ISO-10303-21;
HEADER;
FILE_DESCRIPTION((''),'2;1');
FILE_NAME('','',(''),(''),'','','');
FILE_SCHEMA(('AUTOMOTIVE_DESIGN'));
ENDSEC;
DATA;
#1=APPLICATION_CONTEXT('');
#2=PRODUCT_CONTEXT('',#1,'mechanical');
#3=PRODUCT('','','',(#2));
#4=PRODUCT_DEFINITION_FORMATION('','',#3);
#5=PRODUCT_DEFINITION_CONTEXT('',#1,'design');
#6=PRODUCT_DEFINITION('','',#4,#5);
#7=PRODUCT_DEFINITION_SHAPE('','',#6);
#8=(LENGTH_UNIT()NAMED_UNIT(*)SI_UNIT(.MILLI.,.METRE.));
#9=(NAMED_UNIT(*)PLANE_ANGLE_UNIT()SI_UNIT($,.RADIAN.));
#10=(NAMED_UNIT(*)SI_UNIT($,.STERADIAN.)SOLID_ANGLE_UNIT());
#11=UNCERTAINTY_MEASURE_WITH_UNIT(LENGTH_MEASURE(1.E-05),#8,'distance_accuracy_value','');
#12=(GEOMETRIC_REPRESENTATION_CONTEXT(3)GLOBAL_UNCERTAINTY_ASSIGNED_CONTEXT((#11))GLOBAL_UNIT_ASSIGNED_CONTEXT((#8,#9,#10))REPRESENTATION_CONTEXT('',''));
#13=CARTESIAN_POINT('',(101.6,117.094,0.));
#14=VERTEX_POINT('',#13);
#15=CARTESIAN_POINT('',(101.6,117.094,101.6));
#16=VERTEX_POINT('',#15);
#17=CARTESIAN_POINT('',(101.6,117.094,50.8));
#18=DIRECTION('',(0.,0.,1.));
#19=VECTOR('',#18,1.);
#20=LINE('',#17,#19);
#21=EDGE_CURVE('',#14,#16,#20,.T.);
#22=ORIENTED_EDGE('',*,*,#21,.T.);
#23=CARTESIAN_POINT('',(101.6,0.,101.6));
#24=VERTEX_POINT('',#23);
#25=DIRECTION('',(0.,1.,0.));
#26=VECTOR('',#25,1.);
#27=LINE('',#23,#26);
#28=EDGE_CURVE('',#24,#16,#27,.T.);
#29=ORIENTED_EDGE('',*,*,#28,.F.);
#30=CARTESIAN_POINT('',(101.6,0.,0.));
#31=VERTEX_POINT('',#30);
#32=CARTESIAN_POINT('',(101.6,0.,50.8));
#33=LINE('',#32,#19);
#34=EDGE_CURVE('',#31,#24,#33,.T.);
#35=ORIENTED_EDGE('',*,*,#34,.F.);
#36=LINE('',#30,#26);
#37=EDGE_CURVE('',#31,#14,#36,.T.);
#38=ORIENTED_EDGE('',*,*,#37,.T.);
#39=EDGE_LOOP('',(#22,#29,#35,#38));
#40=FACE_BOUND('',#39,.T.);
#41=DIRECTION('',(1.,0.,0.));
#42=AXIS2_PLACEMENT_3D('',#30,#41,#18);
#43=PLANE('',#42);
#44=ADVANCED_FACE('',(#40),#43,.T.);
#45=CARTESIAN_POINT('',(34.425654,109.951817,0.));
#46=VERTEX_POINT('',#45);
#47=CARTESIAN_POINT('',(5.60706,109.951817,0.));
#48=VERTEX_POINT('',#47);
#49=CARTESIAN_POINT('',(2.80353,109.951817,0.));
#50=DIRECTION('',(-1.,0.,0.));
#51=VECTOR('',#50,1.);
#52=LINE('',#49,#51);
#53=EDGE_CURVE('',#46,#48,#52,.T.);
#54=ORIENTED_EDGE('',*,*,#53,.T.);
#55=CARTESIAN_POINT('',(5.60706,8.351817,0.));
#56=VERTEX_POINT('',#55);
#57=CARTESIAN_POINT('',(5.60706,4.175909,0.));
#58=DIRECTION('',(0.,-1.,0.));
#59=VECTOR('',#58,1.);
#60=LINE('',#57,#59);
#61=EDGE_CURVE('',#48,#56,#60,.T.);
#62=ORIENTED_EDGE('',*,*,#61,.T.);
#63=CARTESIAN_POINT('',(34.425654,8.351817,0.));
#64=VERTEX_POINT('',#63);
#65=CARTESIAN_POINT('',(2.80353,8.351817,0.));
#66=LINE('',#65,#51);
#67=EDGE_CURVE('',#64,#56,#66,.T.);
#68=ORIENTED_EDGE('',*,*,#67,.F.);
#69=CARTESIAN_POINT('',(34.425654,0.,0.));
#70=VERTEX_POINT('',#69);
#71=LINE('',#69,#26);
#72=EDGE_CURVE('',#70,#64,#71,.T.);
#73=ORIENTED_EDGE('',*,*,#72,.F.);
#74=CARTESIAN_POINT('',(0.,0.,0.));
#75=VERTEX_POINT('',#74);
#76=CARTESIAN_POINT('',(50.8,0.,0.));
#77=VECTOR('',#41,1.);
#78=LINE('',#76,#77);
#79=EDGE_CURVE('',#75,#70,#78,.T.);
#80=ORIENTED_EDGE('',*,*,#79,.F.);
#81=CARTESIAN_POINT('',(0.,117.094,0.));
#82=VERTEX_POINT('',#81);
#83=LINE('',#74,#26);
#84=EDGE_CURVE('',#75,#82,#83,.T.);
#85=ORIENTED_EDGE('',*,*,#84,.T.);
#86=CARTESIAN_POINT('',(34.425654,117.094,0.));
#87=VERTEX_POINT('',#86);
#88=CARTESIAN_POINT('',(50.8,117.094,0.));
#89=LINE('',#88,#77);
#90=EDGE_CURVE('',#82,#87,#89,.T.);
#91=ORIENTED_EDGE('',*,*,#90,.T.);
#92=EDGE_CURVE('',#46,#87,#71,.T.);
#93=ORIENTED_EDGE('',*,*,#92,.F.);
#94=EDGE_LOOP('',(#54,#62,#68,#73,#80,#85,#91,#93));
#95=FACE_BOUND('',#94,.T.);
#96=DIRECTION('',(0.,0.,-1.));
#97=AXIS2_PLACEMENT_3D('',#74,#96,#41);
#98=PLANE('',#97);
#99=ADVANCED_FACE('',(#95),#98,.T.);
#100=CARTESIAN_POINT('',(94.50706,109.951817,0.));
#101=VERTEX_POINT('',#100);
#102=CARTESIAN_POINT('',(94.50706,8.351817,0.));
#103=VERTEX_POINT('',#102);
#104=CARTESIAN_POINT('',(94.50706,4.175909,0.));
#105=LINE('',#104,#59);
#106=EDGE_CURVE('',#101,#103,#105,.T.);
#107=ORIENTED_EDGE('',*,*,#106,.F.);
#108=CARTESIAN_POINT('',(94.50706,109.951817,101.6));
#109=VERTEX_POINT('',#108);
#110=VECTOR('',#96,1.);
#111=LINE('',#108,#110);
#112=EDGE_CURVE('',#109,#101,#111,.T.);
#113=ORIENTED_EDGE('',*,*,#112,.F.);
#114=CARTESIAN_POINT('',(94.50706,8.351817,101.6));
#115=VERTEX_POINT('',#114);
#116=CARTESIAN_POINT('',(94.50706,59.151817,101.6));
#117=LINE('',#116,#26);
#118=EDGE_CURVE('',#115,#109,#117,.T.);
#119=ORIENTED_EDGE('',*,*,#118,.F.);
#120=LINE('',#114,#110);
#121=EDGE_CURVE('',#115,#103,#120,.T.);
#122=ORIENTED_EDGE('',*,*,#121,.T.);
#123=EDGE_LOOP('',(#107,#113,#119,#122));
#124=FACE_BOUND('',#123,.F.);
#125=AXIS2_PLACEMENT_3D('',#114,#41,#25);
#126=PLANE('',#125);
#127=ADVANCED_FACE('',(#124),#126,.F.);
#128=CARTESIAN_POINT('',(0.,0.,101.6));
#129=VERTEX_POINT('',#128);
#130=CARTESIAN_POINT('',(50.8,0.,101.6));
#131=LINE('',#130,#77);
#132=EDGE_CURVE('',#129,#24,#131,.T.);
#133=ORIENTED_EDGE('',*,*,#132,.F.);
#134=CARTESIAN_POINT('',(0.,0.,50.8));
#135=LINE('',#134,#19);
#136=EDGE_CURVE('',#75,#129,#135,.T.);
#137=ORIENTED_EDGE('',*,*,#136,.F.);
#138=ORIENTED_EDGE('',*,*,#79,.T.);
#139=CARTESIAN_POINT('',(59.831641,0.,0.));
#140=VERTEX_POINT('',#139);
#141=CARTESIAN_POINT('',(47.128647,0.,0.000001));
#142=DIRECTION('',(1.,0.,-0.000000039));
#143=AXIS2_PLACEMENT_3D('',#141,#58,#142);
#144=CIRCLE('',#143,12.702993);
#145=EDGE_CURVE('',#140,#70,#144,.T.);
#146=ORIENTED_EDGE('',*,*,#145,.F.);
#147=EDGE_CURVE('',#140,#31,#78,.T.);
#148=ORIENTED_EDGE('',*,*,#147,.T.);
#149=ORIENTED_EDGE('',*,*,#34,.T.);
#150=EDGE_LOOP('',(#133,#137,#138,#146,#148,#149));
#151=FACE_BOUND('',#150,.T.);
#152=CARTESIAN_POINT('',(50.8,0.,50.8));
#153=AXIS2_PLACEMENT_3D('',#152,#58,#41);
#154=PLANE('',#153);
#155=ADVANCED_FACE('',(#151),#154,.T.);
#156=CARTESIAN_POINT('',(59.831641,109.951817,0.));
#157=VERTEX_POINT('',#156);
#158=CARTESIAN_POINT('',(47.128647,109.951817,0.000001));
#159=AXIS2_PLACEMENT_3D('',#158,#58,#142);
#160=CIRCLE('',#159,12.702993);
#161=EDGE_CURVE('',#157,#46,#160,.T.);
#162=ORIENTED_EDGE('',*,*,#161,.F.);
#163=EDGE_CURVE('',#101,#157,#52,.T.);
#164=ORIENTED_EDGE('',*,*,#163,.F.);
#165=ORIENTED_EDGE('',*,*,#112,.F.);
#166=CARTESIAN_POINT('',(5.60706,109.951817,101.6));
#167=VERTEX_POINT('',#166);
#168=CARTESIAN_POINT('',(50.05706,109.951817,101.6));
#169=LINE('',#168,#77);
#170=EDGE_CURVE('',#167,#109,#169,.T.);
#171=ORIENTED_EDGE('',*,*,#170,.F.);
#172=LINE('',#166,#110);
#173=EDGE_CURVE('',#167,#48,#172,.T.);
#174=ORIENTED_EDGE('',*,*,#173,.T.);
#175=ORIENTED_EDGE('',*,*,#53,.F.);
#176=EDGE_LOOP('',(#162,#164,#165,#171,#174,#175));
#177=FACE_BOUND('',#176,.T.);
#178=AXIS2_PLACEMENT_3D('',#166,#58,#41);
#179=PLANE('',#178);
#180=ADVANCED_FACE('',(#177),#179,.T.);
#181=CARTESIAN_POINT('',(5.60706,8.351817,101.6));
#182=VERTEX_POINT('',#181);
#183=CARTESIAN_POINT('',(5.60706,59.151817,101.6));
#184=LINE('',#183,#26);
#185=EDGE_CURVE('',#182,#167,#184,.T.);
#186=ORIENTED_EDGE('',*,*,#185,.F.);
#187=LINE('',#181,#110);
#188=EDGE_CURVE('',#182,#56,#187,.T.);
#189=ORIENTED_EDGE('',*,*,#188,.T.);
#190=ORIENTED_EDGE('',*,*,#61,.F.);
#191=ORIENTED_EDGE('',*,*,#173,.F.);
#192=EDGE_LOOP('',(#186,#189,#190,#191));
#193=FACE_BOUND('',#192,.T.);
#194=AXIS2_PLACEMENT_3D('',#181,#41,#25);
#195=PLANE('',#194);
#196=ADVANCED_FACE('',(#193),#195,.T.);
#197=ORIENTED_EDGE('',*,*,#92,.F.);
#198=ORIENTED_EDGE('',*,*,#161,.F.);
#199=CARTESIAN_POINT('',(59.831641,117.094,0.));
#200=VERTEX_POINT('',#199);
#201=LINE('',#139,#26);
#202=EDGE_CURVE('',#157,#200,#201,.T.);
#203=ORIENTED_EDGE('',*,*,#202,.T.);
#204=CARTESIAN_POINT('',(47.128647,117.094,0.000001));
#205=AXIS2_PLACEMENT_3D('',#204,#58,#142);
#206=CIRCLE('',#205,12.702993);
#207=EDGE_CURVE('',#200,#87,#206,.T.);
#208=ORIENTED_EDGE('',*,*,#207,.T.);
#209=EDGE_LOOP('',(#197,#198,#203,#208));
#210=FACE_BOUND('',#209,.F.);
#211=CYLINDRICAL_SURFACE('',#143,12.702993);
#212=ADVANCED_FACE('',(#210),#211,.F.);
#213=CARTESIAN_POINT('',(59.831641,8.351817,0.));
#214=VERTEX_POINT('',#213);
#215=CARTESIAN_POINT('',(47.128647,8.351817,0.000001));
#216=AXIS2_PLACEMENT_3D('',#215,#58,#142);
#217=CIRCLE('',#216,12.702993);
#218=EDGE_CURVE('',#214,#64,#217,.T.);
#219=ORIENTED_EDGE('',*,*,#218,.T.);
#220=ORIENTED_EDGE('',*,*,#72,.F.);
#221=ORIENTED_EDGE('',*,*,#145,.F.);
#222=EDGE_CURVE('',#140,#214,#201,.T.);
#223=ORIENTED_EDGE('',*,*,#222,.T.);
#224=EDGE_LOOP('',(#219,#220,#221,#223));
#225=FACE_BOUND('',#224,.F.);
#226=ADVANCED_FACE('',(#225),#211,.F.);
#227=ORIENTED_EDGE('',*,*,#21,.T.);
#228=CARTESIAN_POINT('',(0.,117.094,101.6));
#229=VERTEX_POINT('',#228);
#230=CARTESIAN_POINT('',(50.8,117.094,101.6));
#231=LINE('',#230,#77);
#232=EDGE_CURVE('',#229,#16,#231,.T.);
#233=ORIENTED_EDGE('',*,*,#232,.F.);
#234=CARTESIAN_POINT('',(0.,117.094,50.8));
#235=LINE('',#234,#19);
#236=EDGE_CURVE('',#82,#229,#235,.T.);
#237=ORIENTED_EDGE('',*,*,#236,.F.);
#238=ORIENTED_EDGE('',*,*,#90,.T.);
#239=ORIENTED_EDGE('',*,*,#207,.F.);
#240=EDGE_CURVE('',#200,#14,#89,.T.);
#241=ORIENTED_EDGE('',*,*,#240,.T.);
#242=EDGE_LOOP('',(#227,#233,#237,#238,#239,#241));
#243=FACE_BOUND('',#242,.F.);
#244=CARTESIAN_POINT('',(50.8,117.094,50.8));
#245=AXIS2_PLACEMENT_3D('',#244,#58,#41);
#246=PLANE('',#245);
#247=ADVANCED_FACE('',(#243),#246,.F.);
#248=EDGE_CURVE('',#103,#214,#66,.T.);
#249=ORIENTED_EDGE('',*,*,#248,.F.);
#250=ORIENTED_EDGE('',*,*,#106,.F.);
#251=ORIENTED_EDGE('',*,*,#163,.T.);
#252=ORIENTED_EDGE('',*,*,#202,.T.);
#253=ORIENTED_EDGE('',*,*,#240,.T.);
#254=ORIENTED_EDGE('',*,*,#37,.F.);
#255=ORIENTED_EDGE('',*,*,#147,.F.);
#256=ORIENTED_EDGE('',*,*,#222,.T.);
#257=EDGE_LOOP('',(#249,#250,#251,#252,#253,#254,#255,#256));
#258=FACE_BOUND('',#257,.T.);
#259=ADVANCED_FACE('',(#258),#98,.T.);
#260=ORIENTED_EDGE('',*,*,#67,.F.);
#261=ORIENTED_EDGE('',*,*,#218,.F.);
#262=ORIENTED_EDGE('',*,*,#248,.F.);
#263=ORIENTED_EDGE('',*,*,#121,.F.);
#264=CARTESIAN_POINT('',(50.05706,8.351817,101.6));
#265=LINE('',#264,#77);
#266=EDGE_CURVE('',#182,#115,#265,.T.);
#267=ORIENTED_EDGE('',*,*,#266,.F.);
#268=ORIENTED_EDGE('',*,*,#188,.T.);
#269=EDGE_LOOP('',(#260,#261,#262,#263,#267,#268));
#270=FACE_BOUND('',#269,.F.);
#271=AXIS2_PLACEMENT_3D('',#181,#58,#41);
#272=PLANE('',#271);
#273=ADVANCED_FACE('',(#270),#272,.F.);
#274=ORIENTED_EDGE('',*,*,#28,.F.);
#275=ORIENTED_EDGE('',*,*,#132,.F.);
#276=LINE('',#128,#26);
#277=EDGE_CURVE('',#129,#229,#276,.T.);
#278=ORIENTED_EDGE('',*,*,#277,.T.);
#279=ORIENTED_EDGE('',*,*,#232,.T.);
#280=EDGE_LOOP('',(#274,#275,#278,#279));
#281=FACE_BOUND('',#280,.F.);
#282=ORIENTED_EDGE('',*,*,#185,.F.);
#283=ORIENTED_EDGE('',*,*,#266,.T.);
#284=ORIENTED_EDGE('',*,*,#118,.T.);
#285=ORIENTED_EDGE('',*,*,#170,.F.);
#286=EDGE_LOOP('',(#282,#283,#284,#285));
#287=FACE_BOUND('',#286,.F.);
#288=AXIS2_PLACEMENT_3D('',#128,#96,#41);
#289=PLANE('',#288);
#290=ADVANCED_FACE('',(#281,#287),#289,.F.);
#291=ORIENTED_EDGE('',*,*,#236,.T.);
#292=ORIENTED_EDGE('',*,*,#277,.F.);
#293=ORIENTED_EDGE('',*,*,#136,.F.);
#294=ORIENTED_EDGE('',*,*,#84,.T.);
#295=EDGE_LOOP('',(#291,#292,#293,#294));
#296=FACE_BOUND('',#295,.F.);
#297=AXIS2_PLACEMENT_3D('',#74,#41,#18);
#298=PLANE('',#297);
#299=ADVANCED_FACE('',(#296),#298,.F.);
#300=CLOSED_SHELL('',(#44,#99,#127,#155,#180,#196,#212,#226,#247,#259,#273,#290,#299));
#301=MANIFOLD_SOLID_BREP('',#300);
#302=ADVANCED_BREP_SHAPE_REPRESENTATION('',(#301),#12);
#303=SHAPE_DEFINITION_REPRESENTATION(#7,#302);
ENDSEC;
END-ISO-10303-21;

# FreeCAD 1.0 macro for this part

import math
import FreeCAD as App
import Part
import Sketcher

V = App.Vector
Q = App.Units.Quantity


def add_polygon(sketch, points):
    """Adds a closed chain of lines whose ends are joined by coincident constraints."""
    first, n = sketch.GeometryCount, len(points)
    for a, b in zip(points, points[1:] + points[:1]):
        sketch.addGeometry(Part.LineSegment(App.Vector(*a, 0), App.Vector(*b, 0)), False)
    for i in range(n):
        sketch.addConstraint(Sketcher.Constraint("Coincident", first + i, 2, first + (i + 1) % n, 1))

doc = App.newDocument("Part")
body = doc.addObject("PartDesign::Body", "Body")

# Sketch on XZ plane
sketch1 = body.newObject("Sketcher::SketchObject", "Sketch")
sketch1.AttachmentSupport = (doc.getObject("XZ_Plane"), [""])
sketch1.MapMode = "FlatFace"
add_polygon(sketch1, [(0, 102), (0, 0), (102, 0), (102, 102)])  # lines 0-3
sketch1.addConstraint(Sketcher.Constraint("Vertical", 0))
sketch1.addConstraint(Sketcher.Constraint("Horizontal", 1))
sketch1.addConstraint(Sketcher.Constraint("Vertical", 2))
sketch1.addConstraint(Sketcher.Constraint("Horizontal", 3))
sketch1.addConstraint(Sketcher.Constraint("Coincident", 0, 2, -1, 1))
sketch1.addConstraint(Sketcher.Constraint("Equal", 3, 0))
sketch1.addConstraint(Sketcher.Constraint("DistanceX", 1, 1, 1, 2, Q("4 in")))
pad1 = body.newObject("PartDesign::Pad", "Pad")
pad1.Profile = sketch1
pad1.Length = Q("4.61 in")
pad1.Reversed = True

# Sketch on XZ plane
sketch2 = body.newObject("Sketcher::SketchObject", "Sketch001")
sketch2.AttachmentSupport = (doc.getObject("XZ_Plane"), [""])
sketch2.MapMode = "FlatFace"
sketch2.addGeometry(Part.LineSegment(V(34, 0, 0), V(60, 0, 0)), False)
sketch2.addGeometry(Part.ArcOfCircle(Part.Circle(V(47, 0, 0), V(0, 0, 1), 13), math.radians(0), math.radians(180)), False)
sketch2.addConstraint(Sketcher.Constraint("Coincident", 0, 1, 1, 2))
sketch2.addConstraint(Sketcher.Constraint("Coincident", 1, 1, 0, 2))
sketch2.addConstraint(Sketcher.Constraint("Horizontal", 0))
sketch2.addConstraint(Sketcher.Constraint("PointOnObject", 1, 3, -1))
sketch2.addConstraint(Sketcher.Constraint("PointOnObject", 0, 1, -1))
sketch2.addConstraint(Sketcher.Constraint("Radius", 1, Q("12.702993 mm")))
sketch2.addConstraint(Sketcher.Constraint("DistanceX", -1, 1, 1, 1, Q("59.831641 mm")))
pocket1 = body.newObject("PartDesign::Pocket", "Pocket")
pocket1.Profile = sketch2
pocket1.Length = Q("4.61 in")

# Sketch on XY plane
sketch3 = body.newObject("Sketcher::SketchObject", "Sketch002")
sketch3.AttachmentSupport = (doc.getObject("XY_Plane"), [""])
sketch3.MapMode = "FlatFace"
sketch3.AttachmentOffset = App.Placement(V(0, 0, 4 * 25.4), App.Rotation())
add_polygon(sketch3, [(6, 110), (6, 8), (95, 8), (95, 110)])  # lines 0-3
sketch3.addConstraint(Sketcher.Constraint("Vertical", 0))
sketch3.addConstraint(Sketcher.Constraint("Horizontal", 1))
sketch3.addConstraint(Sketcher.Constraint("Vertical", 2))
sketch3.addConstraint(Sketcher.Constraint("Horizontal", 3))
sketch3.addConstraint(Sketcher.Constraint("DistanceY", 0, 2, 0, 1, Q("4 in")))
sketch3.addConstraint(Sketcher.Constraint("DistanceX", 1, 1, 1, 2, Q("3.5 in")))
sketch3.addConstraint(Sketcher.Constraint("DistanceX", -1, 1, 0, 2, Q("5.60706 mm")))
sketch3.addConstraint(Sketcher.Constraint("DistanceY", -1, 1, 0, 2, Q("8.351817 mm")))
pocket2 = body.newObject("PartDesign::Pocket", "Pocket001")
pocket2.Profile = sketch3
pocket2.Length = Q("4.11 in")

doc.recompute()
